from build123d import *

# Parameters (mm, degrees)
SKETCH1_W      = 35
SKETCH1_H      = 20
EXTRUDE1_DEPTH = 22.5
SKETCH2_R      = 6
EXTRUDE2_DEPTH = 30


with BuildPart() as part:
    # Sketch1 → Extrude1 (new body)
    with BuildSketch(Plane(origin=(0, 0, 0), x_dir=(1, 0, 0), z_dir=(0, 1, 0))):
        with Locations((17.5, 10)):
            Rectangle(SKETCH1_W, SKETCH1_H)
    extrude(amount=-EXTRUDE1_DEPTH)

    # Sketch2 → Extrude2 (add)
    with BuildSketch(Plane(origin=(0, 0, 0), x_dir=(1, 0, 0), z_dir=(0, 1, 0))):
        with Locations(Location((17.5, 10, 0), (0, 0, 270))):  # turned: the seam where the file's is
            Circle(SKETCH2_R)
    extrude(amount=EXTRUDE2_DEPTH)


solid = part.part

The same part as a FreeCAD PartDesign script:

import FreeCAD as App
import Part
import Sketcher


def add_polygon(sketch, points):
    """Adds a closed chain of lines whose ends are joined by coincident constraints."""
    first, n = sketch.GeometryCount, len(points)
    for a, b in zip(points, points[1:] + points[:1]):
        sketch.addGeometry(Part.LineSegment(App.Vector(*a, 0), App.Vector(*b, 0)), False)
    for i in range(n):
        sketch.addConstraint(Sketcher.Constraint("Coincident", first + i, 2, first + (i + 1) % n, 1))

doc = App.newDocument("Part")
body = doc.addObject("PartDesign::Body", "Body")

# Sketch on XZ plane
sketch1 = body.newObject("Sketcher::SketchObject", "Sketch")
sketch1.AttachmentSupport = (doc.getObject("XZ_Plane"), [""])
sketch1.MapMode = "FlatFace"
add_polygon(sketch1, [(0, -20), (0, 0), (35, 0), (35, -20)])  # lines 0-3
sketch1.addConstraint(Sketcher.Constraint("Vertical", 0))
sketch1.addConstraint(Sketcher.Constraint("Horizontal", 1))
sketch1.addConstraint(Sketcher.Constraint("Vertical", 2))
sketch1.addConstraint(Sketcher.Constraint("Horizontal", 3))
sketch1.addConstraint(Sketcher.Constraint("Coincident", 0, 2, -1, 1))
sketch1.addConstraint(Sketcher.Constraint("DistanceX", 1, 1, 1, 2, 35.0))
sketch1.addConstraint(Sketcher.Constraint("DistanceY", 0, 1, 0, 2, 20.0))
pad1 = body.newObject("PartDesign::Pad", "Pad")
pad1.Profile = sketch1
pad1.Length = 22.5

# Sketch on XZ plane
sketch2 = body.newObject("Sketcher::SketchObject", "Sketch001")
sketch2.AttachmentSupport = (doc.getObject("XZ_Plane"), [""])
sketch2.MapMode = "FlatFace"
sketch2.addGeometry(Part.Circle(App.Vector(18, -10, 0), App.Vector(0, 0, 1), 6), False)
sketch2.addConstraint(Sketcher.Constraint("Diameter", 0, 12.0))
sketch2.addConstraint(Sketcher.Constraint("DistanceY", 0, 3, -1, 1, 10.0))
sketch2.addConstraint(Sketcher.Constraint("DistanceX", -1, 1, 0, 3, 17.5))
pad2 = body.newObject("PartDesign::Pad", "Pad001")
pad2.Profile = sketch2
pad2.Length = 30
pad2.Reversed = True

doc.recompute()
